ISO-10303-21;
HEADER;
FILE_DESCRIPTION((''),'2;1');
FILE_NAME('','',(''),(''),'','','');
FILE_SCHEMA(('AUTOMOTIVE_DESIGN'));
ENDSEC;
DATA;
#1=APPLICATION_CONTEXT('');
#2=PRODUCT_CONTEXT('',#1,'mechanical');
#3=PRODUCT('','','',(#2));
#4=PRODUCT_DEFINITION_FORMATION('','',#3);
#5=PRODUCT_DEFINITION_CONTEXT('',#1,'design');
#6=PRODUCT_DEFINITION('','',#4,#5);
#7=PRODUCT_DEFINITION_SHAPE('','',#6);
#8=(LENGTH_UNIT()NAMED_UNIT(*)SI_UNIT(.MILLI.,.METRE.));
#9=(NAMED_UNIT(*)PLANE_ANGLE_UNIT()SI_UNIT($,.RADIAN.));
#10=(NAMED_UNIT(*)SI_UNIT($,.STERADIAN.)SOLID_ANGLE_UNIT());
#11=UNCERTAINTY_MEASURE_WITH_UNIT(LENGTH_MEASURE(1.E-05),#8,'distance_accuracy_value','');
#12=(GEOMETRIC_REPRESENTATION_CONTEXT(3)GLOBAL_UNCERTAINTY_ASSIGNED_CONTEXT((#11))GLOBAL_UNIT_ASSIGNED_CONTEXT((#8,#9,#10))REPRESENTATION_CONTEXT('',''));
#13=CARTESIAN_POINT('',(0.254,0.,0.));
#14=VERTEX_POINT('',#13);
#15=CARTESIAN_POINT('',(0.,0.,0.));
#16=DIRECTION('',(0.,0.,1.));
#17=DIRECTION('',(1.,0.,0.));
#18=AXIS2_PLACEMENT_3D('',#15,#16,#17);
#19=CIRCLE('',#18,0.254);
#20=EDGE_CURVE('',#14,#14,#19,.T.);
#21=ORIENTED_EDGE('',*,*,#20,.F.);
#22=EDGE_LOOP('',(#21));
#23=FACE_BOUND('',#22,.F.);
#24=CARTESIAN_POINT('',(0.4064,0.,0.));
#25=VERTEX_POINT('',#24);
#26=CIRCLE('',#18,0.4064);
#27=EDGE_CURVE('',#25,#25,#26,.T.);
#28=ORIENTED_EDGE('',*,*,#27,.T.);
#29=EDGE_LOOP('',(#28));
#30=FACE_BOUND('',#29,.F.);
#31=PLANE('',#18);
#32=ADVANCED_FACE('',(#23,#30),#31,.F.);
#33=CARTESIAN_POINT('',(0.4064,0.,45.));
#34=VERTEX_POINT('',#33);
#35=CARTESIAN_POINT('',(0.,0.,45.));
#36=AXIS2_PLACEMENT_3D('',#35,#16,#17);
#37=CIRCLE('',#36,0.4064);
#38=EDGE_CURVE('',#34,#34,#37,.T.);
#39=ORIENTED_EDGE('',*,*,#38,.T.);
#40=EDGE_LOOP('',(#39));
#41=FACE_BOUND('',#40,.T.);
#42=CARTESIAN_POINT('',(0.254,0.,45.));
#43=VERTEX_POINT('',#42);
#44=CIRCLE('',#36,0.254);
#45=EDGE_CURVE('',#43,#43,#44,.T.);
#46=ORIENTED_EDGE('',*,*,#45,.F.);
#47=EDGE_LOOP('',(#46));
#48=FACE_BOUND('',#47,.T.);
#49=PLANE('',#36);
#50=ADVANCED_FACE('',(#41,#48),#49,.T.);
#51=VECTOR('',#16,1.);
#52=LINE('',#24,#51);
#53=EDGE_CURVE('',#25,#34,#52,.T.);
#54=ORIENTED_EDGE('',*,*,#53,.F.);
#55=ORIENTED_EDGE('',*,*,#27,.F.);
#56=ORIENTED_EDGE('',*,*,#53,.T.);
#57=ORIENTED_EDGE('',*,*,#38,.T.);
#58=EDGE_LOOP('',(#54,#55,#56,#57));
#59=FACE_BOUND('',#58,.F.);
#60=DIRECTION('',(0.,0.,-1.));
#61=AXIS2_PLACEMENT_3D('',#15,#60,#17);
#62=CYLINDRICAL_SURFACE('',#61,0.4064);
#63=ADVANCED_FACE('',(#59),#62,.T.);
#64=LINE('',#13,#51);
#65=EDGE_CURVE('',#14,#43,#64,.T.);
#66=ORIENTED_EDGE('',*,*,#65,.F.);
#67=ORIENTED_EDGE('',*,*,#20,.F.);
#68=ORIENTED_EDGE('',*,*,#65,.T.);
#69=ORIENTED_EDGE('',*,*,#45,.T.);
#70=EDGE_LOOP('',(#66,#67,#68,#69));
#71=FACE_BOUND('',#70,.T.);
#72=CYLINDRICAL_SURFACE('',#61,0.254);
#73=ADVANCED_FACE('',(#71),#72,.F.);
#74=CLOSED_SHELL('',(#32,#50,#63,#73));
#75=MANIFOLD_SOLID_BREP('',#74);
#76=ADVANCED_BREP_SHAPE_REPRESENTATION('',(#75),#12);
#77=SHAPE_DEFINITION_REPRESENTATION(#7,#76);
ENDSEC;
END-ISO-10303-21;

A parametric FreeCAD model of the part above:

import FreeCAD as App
import Part
import Sketcher

V = App.Vector
Q = App.Units.Quantity

doc = App.newDocument("Part")
body = doc.addObject("PartDesign::Body", "Body")

sketch1 = body.newObject("Sketcher::SketchObject", "Sketch")
sketch1.AttachmentSupport = (doc.getObject("XY_Plane"), [""])
sketch1.MapMode = "FlatFace"
sketch1.addGeometry([
    Part.Circle(V(0, 0, 0), V(0, 0, 1), 0.4064),
    Part.Circle(V(0, 0, 0), V(0, 0, 1), 0.254),
], False)
sketch1.addConstraint([
    Sketcher.Constraint("Coincident", 0, 3, -1, 1),
    Sketcher.Constraint("Coincident", 1, 3, -1, 1),
    Sketcher.Constraint("Diameter", 1, Q("0.02 in")),
    Sketcher.Constraint("Diameter", 0, Q("0.032 in")),
])
pad1 = body.newObject("PartDesign::Pad", "Pad")
pad1.Profile = sketch1
pad1.Length = 45

doc.recompute()
